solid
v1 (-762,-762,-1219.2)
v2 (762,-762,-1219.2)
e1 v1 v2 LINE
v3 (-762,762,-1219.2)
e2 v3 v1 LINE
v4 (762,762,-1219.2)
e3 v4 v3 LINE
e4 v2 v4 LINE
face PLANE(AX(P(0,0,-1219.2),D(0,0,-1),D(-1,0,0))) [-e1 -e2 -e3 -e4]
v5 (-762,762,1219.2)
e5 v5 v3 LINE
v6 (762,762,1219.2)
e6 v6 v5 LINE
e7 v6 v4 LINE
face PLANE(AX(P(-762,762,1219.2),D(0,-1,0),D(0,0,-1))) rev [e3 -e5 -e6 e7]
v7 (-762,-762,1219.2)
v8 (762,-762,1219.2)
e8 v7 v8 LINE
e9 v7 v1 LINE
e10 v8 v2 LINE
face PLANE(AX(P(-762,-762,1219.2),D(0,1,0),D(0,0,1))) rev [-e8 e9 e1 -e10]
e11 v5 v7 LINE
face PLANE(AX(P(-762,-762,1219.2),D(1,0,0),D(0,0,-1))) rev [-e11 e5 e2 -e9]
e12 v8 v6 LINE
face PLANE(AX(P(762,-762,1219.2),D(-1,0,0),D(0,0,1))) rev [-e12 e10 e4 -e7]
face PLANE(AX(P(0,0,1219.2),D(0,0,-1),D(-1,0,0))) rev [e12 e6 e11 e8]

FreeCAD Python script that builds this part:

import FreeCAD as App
import Part
import Sketcher

V = App.Vector
Q = App.Units.Quantity


def add_polygon(sketch, points):
    """Adds a closed chain of lines whose ends are joined by coincident constraints."""
    first, n = sketch.GeometryCount, len(points)
    for a, b in zip(points, points[1:] + points[:1]):
        sketch.addGeometry(Part.LineSegment(App.Vector(*a, 0), App.Vector(*b, 0)), False)
    for i in range(n):
        sketch.addConstraint(Sketcher.Constraint("Coincident", first + i, 2, first + (i + 1) % n, 1))

doc = App.newDocument("Part")
params = doc.addObject("Spreadsheet::Sheet", "Params")
for row, (alias, value) in enumerate([
    ("sketch1_width", "60 in"),
    ("pad1_length", "96 in"),
], start=1):
    params.set(f"A{row}", alias)
    params.set(f"B{row}", "=" + value)
    params.setAlias(f"B{row}", alias)

body = doc.addObject("PartDesign::Body", "Body")

# Sketch on XY plane
sketch1 = doc.addObject("Sketcher::SketchObject", "Sketch")
body.addObject(sketch1)
sketch1.AttachmentSupport = (doc.XY_Plane, [""])
sketch1.MapMode = "FlatFace"
add_polygon(sketch1, [(-762, 762), (-762, -762), (762, -762), (762, 762)])  # lines 0-3
sketch1.addConstraint([
    Sketcher.Constraint("Vertical", 0),
    Sketcher.Constraint("Horizontal", 1),
    Sketcher.Constraint("Vertical", 2),
    Sketcher.Constraint("Horizontal", 3),
    Sketcher.Constraint("Symmetric", 0, 2, 2, 2, -1, 1),
    Sketcher.Constraint("Equal", 3, 0),
    Sketcher.Constraint("DistanceX", 1, 1, 1, 2, Q("60 in")),
])
sketch1.setExpression("Constraints[10]", "Params.sketch1_width")
pad1 = doc.addObject("PartDesign::Pad", "Pad")
body.addObject(pad1)
pad1.Profile = sketch1
pad1.setExpression("Length", "Params.pad1_length")
pad1.Midplane = True

doc.recompute()
